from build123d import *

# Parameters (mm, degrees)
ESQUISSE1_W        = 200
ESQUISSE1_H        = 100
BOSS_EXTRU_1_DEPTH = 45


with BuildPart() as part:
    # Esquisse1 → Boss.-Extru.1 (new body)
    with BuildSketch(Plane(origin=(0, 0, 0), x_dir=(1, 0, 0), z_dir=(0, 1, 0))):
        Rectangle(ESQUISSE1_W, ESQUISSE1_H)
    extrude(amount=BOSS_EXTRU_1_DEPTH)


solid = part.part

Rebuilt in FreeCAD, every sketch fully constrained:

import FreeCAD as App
import Part
import Sketcher

V = App.Vector
Q = App.Units.Quantity

doc = App.newDocument("Part")
body = doc.addObject("PartDesign::Body", "Body")

# Sketch on XZ plane
sketch1 = body.newObject("Sketcher::SketchObject", "Sketch")
sketch1.AttachmentSupport = (doc.getObject("XZ_Plane"), [""])
sketch1.MapMode = "FlatFace"
sketch1.addGeometry(Part.LineSegment(V(-100, -50, 0), V(-100, 50, 0)), False)
sketch1.addGeometry(Part.LineSegment(V(-100, 50, 0), V(100, 50, 0)), False)
sketch1.addGeometry(Part.LineSegment(V(100, 50, 0), V(100, -50, 0)), False)
sketch1.addGeometry(Part.LineSegment(V(100, -50, 0), V(-100, -50, 0)), False)
sketch1.addConstraint(Sketcher.Constraint("Coincident", 0, 2, 1, 1))
sketch1.addConstraint(Sketcher.Constraint("Coincident", 1, 2, 2, 1))
sketch1.addConstraint(Sketcher.Constraint("Coincident", 2, 2, 3, 1))
sketch1.addConstraint(Sketcher.Constraint("Coincident", 3, 2, 0, 1))
sketch1.addConstraint(Sketcher.Constraint("Vertical", 0))
sketch1.addConstraint(Sketcher.Constraint("Horizontal", 1))
sketch1.addConstraint(Sketcher.Constraint("Vertical", 2))
sketch1.addConstraint(Sketcher.Constraint("Horizontal", 3))
sketch1.addConstraint(Sketcher.Constraint("Symmetric", 0, 2, 2, 2, -1, 1))
sketch1.addConstraint(Sketcher.Constraint("DistanceX", 1, 1, 1, 2, Q("200 mm")))
sketch1.addConstraint(Sketcher.Constraint("DistanceY", 0, 1, 0, 2, Q("100 mm")))
pad1 = body.newObject("PartDesign::Pad", "Pad")
pad1.Profile = sketch1
pad1.Length = 45
pad1.Reversed = True

doc.recompute()
